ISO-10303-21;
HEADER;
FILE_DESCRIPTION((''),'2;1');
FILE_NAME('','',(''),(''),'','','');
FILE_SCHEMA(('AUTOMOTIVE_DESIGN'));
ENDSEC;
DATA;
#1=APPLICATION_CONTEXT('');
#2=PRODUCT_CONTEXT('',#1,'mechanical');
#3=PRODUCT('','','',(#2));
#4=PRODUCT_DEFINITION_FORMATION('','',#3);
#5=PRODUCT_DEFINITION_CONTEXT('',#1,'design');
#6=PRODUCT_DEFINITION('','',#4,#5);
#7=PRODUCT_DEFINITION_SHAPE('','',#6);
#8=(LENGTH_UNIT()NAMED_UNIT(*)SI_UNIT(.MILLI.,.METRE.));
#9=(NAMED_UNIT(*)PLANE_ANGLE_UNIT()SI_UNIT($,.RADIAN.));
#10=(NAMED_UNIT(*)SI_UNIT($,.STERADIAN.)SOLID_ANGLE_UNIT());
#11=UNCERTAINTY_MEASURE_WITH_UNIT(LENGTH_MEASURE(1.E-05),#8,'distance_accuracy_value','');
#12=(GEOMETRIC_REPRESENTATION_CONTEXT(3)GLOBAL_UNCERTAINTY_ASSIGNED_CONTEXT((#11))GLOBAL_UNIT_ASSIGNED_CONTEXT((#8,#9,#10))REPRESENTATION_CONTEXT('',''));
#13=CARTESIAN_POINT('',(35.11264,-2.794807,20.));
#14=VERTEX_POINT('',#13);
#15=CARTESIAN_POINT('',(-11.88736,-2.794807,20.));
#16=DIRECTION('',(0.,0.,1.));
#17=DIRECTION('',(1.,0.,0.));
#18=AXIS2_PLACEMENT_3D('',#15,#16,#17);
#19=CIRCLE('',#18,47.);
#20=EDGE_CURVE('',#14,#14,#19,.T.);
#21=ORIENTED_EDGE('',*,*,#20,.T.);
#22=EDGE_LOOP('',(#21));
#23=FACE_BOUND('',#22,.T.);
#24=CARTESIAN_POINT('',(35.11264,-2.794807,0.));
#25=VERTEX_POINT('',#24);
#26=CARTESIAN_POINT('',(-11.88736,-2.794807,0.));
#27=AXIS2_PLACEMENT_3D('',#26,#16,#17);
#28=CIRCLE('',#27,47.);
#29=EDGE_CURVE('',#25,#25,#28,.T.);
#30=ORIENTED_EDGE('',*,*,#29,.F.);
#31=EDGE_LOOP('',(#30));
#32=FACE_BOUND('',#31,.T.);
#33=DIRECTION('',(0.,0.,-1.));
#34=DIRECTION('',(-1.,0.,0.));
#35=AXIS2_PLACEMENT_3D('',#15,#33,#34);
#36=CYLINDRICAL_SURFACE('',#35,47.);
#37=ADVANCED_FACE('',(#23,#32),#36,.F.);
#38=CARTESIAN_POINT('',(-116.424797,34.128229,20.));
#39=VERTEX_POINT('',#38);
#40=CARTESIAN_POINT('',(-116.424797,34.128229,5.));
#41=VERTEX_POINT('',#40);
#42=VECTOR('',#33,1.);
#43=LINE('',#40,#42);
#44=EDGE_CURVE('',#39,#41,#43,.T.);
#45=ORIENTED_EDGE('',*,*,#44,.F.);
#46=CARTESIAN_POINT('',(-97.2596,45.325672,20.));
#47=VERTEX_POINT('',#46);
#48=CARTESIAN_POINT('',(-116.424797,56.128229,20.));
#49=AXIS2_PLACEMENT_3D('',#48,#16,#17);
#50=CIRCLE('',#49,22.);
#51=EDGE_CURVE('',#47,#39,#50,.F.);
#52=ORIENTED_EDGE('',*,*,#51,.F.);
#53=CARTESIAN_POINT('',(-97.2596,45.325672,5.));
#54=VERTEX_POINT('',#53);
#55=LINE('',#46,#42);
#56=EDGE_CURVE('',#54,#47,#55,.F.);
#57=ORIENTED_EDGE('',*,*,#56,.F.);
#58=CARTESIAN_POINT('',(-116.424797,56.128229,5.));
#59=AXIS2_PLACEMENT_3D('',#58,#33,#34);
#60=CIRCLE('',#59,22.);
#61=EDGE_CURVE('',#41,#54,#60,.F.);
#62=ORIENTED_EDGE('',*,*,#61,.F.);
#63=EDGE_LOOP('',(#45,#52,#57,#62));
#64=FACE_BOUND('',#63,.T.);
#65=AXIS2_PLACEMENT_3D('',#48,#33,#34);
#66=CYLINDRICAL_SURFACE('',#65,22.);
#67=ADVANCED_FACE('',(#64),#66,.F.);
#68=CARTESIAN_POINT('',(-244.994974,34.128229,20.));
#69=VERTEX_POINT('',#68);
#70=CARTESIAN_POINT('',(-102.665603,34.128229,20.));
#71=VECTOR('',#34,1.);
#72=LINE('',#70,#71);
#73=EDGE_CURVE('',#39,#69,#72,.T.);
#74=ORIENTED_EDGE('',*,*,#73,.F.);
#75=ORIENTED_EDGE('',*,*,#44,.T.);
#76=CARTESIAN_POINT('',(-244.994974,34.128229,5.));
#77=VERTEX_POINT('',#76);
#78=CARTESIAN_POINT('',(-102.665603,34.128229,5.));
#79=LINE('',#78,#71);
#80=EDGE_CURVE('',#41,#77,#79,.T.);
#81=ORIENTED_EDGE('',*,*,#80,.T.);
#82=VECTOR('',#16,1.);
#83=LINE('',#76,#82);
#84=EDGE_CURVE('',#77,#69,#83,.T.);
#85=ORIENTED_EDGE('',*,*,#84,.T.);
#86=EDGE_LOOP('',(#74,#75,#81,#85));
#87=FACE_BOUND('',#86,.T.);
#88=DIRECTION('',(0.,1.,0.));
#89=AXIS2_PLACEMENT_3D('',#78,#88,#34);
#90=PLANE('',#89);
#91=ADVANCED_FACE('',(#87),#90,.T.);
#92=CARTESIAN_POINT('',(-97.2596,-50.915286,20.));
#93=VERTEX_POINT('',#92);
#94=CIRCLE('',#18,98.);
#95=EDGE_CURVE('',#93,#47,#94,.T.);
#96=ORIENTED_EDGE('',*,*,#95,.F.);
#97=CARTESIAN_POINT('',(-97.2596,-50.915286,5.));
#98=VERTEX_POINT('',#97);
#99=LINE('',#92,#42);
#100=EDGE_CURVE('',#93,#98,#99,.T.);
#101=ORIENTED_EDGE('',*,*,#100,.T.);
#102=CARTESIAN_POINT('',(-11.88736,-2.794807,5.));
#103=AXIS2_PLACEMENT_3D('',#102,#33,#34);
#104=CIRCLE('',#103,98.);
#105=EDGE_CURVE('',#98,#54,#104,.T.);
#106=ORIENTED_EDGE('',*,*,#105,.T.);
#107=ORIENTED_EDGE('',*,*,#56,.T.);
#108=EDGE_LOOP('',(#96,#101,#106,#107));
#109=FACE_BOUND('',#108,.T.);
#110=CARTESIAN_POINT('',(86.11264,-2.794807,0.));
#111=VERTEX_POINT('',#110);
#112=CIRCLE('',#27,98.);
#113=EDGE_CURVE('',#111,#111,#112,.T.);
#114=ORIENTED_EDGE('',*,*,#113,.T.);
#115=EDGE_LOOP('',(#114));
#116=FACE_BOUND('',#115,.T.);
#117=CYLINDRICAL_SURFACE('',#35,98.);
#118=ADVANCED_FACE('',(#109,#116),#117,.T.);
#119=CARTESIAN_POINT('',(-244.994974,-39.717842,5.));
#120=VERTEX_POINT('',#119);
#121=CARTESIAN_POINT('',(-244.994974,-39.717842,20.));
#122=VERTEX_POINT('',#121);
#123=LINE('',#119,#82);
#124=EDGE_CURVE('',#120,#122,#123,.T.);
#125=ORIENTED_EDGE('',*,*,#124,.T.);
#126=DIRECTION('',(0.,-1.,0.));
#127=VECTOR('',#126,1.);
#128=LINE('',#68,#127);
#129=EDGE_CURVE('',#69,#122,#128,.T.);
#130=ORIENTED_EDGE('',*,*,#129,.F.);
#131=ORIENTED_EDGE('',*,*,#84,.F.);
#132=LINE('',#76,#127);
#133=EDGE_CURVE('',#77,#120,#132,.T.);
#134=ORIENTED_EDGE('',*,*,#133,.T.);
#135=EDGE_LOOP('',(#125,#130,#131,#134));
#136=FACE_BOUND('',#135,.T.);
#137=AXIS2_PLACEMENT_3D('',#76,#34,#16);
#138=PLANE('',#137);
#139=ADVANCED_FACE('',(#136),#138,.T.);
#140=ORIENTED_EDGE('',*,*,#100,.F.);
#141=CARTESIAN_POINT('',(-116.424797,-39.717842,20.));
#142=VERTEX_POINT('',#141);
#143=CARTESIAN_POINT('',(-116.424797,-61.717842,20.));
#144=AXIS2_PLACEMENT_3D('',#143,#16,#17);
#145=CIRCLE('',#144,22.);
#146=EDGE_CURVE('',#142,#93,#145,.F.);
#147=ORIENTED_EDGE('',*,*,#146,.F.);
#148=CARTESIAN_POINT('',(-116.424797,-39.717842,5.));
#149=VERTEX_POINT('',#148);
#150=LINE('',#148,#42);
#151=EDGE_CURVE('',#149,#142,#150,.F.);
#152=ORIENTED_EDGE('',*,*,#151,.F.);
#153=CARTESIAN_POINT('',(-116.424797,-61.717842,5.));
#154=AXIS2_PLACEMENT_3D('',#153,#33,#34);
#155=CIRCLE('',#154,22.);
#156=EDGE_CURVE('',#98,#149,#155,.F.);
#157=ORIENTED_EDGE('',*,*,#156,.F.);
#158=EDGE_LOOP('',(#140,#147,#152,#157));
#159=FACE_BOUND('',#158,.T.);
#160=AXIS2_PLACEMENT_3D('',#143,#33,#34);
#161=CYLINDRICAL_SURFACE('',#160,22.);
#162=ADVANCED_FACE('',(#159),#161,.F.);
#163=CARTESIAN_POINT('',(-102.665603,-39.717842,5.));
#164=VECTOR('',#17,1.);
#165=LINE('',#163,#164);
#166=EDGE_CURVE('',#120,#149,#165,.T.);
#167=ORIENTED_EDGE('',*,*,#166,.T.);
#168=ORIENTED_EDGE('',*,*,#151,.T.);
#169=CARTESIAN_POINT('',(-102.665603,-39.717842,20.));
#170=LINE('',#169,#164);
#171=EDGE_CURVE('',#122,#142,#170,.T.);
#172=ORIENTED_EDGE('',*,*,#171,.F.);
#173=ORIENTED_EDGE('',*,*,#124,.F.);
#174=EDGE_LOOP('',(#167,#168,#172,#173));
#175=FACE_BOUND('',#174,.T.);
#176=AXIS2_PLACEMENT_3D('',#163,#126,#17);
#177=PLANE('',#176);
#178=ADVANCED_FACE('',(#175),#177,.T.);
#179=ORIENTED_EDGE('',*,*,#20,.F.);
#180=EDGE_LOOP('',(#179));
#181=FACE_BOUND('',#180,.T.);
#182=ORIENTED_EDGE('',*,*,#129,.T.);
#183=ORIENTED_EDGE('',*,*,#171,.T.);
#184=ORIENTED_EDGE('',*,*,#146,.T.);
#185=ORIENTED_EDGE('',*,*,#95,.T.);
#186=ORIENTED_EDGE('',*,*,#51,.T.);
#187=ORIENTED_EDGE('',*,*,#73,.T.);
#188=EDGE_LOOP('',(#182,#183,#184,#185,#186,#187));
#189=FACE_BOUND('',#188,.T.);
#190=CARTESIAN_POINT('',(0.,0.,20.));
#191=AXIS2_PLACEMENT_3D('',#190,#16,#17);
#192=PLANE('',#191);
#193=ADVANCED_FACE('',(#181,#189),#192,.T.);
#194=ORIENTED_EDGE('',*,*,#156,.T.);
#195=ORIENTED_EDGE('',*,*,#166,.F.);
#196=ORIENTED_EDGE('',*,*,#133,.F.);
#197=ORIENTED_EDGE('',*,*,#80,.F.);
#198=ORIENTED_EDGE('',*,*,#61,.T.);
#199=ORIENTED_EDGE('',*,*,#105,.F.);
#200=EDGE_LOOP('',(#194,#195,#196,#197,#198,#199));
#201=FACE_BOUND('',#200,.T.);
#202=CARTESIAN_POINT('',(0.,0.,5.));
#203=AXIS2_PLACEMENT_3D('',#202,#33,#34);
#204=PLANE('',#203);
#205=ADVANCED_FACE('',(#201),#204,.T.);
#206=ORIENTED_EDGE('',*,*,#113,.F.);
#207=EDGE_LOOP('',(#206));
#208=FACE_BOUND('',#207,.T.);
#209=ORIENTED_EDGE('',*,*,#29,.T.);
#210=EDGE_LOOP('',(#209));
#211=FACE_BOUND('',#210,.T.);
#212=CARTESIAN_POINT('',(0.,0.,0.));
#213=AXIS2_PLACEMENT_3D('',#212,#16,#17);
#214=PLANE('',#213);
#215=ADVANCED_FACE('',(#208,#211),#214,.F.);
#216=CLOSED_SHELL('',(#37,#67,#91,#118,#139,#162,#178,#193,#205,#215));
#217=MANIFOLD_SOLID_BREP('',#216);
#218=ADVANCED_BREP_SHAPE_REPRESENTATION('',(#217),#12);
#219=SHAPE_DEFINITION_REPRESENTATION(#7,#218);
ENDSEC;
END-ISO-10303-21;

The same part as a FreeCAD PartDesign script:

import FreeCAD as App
import Part
import Sketcher

V = App.Vector
Q = App.Units.Quantity


def edges_at(feature, points):
    """Names of the edges that pass closest to the given points."""
    edges = feature.Shape.Edges
    near = lambda p: min(range(len(edges)), key=lambda i: edges[i].distToShape(Part.Vertex(*p))[0])
    return sorted({f"Edge{near(p) + 1}" for p in points})

doc = App.newDocument("Part")
params = doc.addObject("Spreadsheet::Sheet", "Params")
for row, (alias, value) in enumerate([
    ("sketch1_diameter", "196 mm"),
    ("sketch1_diameter2", "94 mm"),
    ("pad1_length", "20 mm"),
    ("pad2_length", "15 mm"),
    ("fillet_radius", "22 mm"),
], start=1):
    params.set(f"A{row}", alias)
    params.set(f"B{row}", "=" + value)
    params.setAlias(f"B{row}", alias)

body = doc.addObject("PartDesign::Body", "Body")

# Sketch on XY plane
sketch1 = body.newObject("Sketcher::SketchObject", "Sketch")
sketch1.AttachmentSupport = (doc.getObject("XY_Plane"), [""])
sketch1.MapMode = "FlatFace"
sketch1.addGeometry([
    Part.Circle(V(-11.88736, -2.794807, 0), V(0, 0, 1), 98),
    Part.Circle(V(-11.88736, -2.794807, 0), V(0, 0, 1), 47),
], False)
sketch1.addConstraint([
    Sketcher.Constraint("Coincident", 1, 3, 0, 3),
    Sketcher.Constraint("Diameter", 0, Q("196 mm")),
    Sketcher.Constraint("Diameter", 1, Q("94 mm")),
    Sketcher.Constraint("DistanceX", 0, 3, -1, 1, Q("11.88736 mm")),
    Sketcher.Constraint("DistanceY", 0, 3, -1, 1, Q("2.794807 mm")),
])
sketch1.setExpression("Constraints[1]", "Params.sketch1_diameter")
sketch1.setExpression("Constraints[2]", "Params.sketch1_diameter2")
pad1 = body.newObject("PartDesign::Pad", "Pad")
pad1.Profile = sketch1
pad1.setExpression("Length", "Params.pad1_length")

# Sketch on XY plane
sketch2 = body.newObject("Sketcher::SketchObject", "Sketch001")
sketch2.AttachmentSupport = (doc.getObject("XY_Plane"), [""])
sketch2.MapMode = "FlatFace"
sketch2.AttachmentOffset = App.Placement(V(0, 0, 20), App.Rotation())
sketch2.addGeometry([
    Part.LineSegment(V(-244.994974, 34.128229, 0), V(-244.994974, -39.717842, 0)),
    Part.LineSegment(V(-244.994974, -39.717842, 0), V(-102.665603, -39.717842, 0)),
    Part.LineSegment(V(-102.665603, -39.717842, 0), V(-102.665603, 34.128229, 0)),
    Part.LineSegment(V(-102.665603, 34.128229, 0), V(-244.994974, 34.128229, 0)),
], False)
sketch2.addConstraint([
    Sketcher.Constraint("Coincident", 0, 2, 1, 1),
    Sketcher.Constraint("Coincident", 1, 2, 2, 1),
    Sketcher.Constraint("Coincident", 2, 2, 3, 1),
    Sketcher.Constraint("Coincident", 3, 2, 0, 1),
    Sketcher.Constraint("Vertical", 0),
    Sketcher.Constraint("Horizontal", 1),
    Sketcher.Constraint("Vertical", 2),
    Sketcher.Constraint("Horizontal", 3),
    Sketcher.Constraint("DistanceX", 1, 1, 1, 2, Q("142.329371 mm")),
    Sketcher.Constraint("DistanceY", 0, 2, 0, 1, Q("73.846071 mm")),
    Sketcher.Constraint("DistanceY", -1, 1, 2, 2, Q("34.128229 mm")),
    Sketcher.Constraint("DistanceX", 0, 2, -1, 1, Q("244.994974 mm")),
])
pad2 = body.newObject("PartDesign::Pad", "Pad001")
pad2.Profile = sketch2
pad2.setExpression("Length", "Params.pad2_length")
pad2.Reversed = True
doc.recompute()

fillet = body.newObject("PartDesign::Fillet", "Fillet")
fillet.Base = (pad2, edges_at(pad2, [(-102.666, 34.128, 12.5), (-102.666, -39.718, 12.5)]))
fillet.setExpression("Radius", "Params.fillet_radius")

doc.recompute()
